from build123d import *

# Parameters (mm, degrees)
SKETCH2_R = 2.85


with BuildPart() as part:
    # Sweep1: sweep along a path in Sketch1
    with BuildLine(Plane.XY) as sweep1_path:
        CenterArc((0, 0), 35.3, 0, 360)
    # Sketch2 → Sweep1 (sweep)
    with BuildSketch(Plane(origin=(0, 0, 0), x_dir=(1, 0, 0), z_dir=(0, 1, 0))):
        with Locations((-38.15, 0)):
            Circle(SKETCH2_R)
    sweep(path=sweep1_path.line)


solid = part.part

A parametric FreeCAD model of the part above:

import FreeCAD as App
import Part
import Sketcher
from FreeCAD import Vector
Q = App.Units.Quantity

doc = App.newDocument("Part")
body = doc.addObject("PartDesign::Body", "Body")

sketch1 = doc.addObject("Sketcher::SketchObject", "Sketch")
body.addObject(sketch1)
sketch1.AttachmentSupport = (doc.XZ_Plane, [""])
sketch1.MapMode = "FlatFace"
sketch1.addGeometry(Part.Circle(Vector(-38.1, 0, 0), Vector(0, 0, 1), 2.9), False)
sketch1.addConstraint(Sketcher.Constraint("PointOnObject", 0, 3, -1))
sketch1.addConstraint(Sketcher.Constraint("Diameter", 0, Q("5.7 mm")))
sketch1.addConstraint(Sketcher.Constraint("DistanceX", 0, 3, -1, 1, Q("38.15 mm")))

sketch2 = doc.addObject("Sketcher::SketchObject", "Sketch001")
body.addObject(sketch2)
sketch2.AttachmentSupport = (doc.XY_Plane, [""])
sketch2.MapMode = "FlatFace"
sketch2.addGeometry(Part.Circle(Vector(0, 0, 0), Vector(0, 0, 1), 35), False)
sketch2.addConstraint(Sketcher.Constraint("Coincident", 0, 3, -1, 1))
sketch2.addConstraint(Sketcher.Constraint("Diameter", 0, Q("70.6 mm")))
doc.recompute()

additivepipe = doc.addObject("PartDesign::AdditivePipe", "AdditivePipe")
body.addObject(additivepipe)
additivepipe.Profile = sketch1
additivepipe.Spine = (sketch2, ["Edge1"])

doc.recompute()
